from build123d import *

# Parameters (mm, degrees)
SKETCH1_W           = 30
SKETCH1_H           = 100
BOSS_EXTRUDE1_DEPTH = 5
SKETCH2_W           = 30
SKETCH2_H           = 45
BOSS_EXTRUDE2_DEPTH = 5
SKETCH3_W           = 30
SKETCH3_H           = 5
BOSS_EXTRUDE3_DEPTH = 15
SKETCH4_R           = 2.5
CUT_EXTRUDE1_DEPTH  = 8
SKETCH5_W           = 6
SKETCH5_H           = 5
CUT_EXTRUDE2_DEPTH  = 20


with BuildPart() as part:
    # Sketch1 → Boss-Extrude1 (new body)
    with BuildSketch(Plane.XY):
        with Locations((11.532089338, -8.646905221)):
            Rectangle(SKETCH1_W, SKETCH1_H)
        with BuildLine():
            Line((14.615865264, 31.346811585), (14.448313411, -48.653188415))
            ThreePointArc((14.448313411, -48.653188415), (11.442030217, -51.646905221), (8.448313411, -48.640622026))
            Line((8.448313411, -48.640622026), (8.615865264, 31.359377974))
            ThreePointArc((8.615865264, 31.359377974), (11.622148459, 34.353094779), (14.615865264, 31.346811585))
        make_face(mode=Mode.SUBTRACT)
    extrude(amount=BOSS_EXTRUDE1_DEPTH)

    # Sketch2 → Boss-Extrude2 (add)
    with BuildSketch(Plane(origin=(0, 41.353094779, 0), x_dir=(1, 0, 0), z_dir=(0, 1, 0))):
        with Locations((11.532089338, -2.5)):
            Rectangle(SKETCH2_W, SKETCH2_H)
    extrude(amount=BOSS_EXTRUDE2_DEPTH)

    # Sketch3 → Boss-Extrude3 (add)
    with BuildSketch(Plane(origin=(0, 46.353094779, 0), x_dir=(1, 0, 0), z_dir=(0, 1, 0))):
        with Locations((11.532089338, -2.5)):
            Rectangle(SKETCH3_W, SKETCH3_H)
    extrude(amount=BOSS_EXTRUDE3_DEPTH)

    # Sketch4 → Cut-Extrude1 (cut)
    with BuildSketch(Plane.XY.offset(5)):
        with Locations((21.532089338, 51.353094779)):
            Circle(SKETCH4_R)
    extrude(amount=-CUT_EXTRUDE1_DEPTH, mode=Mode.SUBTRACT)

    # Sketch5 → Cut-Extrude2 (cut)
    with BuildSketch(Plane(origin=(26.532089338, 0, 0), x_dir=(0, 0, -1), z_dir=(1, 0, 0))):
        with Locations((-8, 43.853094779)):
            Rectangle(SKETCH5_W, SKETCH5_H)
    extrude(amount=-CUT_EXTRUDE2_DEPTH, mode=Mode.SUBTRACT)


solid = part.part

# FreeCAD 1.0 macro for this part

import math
import FreeCAD as App
import Part
import Sketcher

V = App.Vector
Q = App.Units.Quantity


def add_polygon(sketch, points):
    """Adds a closed chain of lines whose ends are joined by coincident constraints."""
    first, n = sketch.GeometryCount, len(points)
    for a, b in zip(points, points[1:] + points[:1]):
        sketch.addGeometry(Part.LineSegment(App.Vector(*a, 0), App.Vector(*b, 0)), False)
    for i in range(n):
        sketch.addConstraint(Sketcher.Constraint("Coincident", first + i, 2, first + (i + 1) % n, 1))

doc = App.newDocument("Part")
body = doc.addObject("PartDesign::Body", "Body")

# Sketch on XY plane
sketch1 = body.newObject("Sketcher::SketchObject", "Sketch")
sketch1.AttachmentSupport = (doc.getObject("XY_Plane"), [""])
sketch1.MapMode = "FlatFace"
add_polygon(sketch1, [(-3.5, 41.4), (-3.5, -58.6), (26.5, -58.6), (26.5, 41.4)])  # lines 0-3
sketch1.addGeometry(Part.ArcOfCircle(Part.Circle(V(11.6, 31.4, 0), V(0, 0, 1), 3), math.radians(0), math.radians(180)), False)  # 4
sketch1.addGeometry(Part.LineSegment(V(14.6, 31.3, 0), V(14.4, -48.7, 0)), False)  # 5
sketch1.addGeometry(Part.ArcOfCircle(Part.Circle(V(11.4, -48.6, 0), V(0, 0, 1), 3), math.radians(180), math.radians(360)), False)  # 6
sketch1.addGeometry(Part.LineSegment(V(8.4, -48.6, 0), V(8.6, 31.4, 0)), False)  # 7
sketch1.addConstraint([
    Sketcher.Constraint("Tangent", 4, 1, 5, 1),
    Sketcher.Constraint("Tangent", 5, 2, 6, 2),
    Sketcher.Constraint("Tangent", 6, 1, 7, 1),
    Sketcher.Constraint("Tangent", 7, 2, 4, 2),
    Sketcher.Constraint("Vertical", 0),
    Sketcher.Constraint("Horizontal", 1),
    Sketcher.Constraint("Vertical", 2),
    Sketcher.Constraint("Horizontal", 3),
    Sketcher.Constraint("Equal", 4, 6),
    Sketcher.Constraint("DistanceX", 1, 1, 1, 2, 30.0),
    Sketcher.Constraint("DistanceY", 0, 2, 0, 1, 100.0),
    Sketcher.Constraint("DistanceY", 6, 3, 4, 3, 80.0),
    Sketcher.Constraint("DistanceY", 0, 2, 6, 3, 10.0),
    Sketcher.Constraint("DistanceX", 4, 3, 4, 1, 3.0),
    Sketcher.Constraint("Angle", 5, Q("-90.12 deg")),
    Sketcher.Constraint("DistanceX", 0, 2, -1, 1, 3.467911),
    Sketcher.Constraint("DistanceY", -1, 1, 4, 1, 31.346812),
    Sketcher.Constraint("DistanceX", -1, 1, 4, 3, 11.615865),
])
pad1 = body.newObject("PartDesign::Pad", "Pad")
pad1.Profile = sketch1
pad1.Length = 5

# Sketch on XZ plane
sketch2 = body.newObject("Sketcher::SketchObject", "Sketch001")
sketch2.AttachmentSupport = (doc.getObject("XZ_Plane"), [""])
sketch2.MapMode = "FlatFace"
sketch2.AttachmentOffset = App.Placement(V(0, 0, -41.353095), App.Rotation())
add_polygon(sketch2, [(-3, -20), (-3, 25), (27, 25), (27, -20)])  # lines 0-3
sketch2.addConstraint([
    Sketcher.Constraint("Vertical", 0),
    Sketcher.Constraint("Horizontal", 1),
    Sketcher.Constraint("Vertical", 2),
    Sketcher.Constraint("Horizontal", 3),
    Sketcher.Constraint("DistanceX", 1, 1, 1, 2, 30.0),
    Sketcher.Constraint("DistanceY", 0, 1, 0, 2, 45.0),
    Sketcher.Constraint("DistanceY", -1, 1, 0, 2, 25.0),
    Sketcher.Constraint("DistanceX", 0, 2, -1, 1, 3.467911),
])
pad2 = body.newObject("PartDesign::Pad", "Pad001")
pad2.Profile = sketch2
pad2.Length = 5
pad2.Reversed = True

# Sketch on XZ plane
sketch3 = body.newObject("Sketcher::SketchObject", "Sketch002")
sketch3.AttachmentSupport = (doc.getObject("XZ_Plane"), [""])
sketch3.MapMode = "FlatFace"
sketch3.AttachmentOffset = App.Placement(V(0, 0, -46.353095), App.Rotation())
add_polygon(sketch3, [(-3, 0), (-3, 5), (27, 5), (27, 0)])  # lines 0-3
sketch3.addConstraint([
    Sketcher.Constraint("Vertical", 0),
    Sketcher.Constraint("Horizontal", 1),
    Sketcher.Constraint("Vertical", 2),
    Sketcher.Constraint("Horizontal", 3),
    Sketcher.Constraint("PointOnObject", 2, 2, -1),
    Sketcher.Constraint("DistanceX", 1, 1, 1, 2, 30.0),
    Sketcher.Constraint("DistanceY", 0, 1, 0, 2, 5.0),
    Sketcher.Constraint("DistanceX", 0, 2, -1, 1, 3.467911),
])
pad3 = body.newObject("PartDesign::Pad", "Pad002")
pad3.Profile = sketch3
pad3.Length = 15
pad3.Reversed = True

# Sketch on XY plane
sketch4 = body.newObject("Sketcher::SketchObject", "Sketch003")
sketch4.AttachmentSupport = (doc.getObject("XY_Plane"), [""])
sketch4.MapMode = "FlatFace"
sketch4.AttachmentOffset = App.Placement(V(0, 0, 5), App.Rotation())
sketch4.addGeometry(Part.Circle(V(21.5, 51.4, 0), V(0, 0, 1), 2.5), False)
sketch4.addConstraint([
    Sketcher.Constraint("Diameter", 0, 5.0),
    Sketcher.Constraint("DistanceX", -1, 1, 0, 3, 21.532089),
    Sketcher.Constraint("DistanceY", -1, 1, 0, 3, 51.353095),
])
pocket1 = body.newObject("PartDesign::Pocket", "Pocket")
pocket1.Profile = sketch4
pocket1.Length = 8

# Sketch on YZ plane
sketch5 = body.newObject("Sketcher::SketchObject", "Sketch004")
sketch5.AttachmentSupport = (doc.getObject("YZ_Plane"), [""])
sketch5.MapMode = "FlatFace"
sketch5.AttachmentOffset = App.Placement(V(0, 0, 26.532089), App.Rotation())
add_polygon(sketch5, [(46, 11), (41, 11), (41, 5), (46, 5)])  # lines 0-3
sketch5.addConstraint([
    Sketcher.Constraint("Horizontal", 0),
    Sketcher.Constraint("Vertical", 1),
    Sketcher.Constraint("Horizontal", 2),
    Sketcher.Constraint("Vertical", 3),
    Sketcher.Constraint("DistanceX", 0, 2, 0, 1, 5.0),
    Sketcher.Constraint("DistanceY", 1, 2, 1, 1, 6.0),
    Sketcher.Constraint("DistanceY", -1, 1, 0, 2, 11.0),
    Sketcher.Constraint("DistanceX", -1, 1, 0, 2, 41.353095),
])
pocket2 = body.newObject("PartDesign::Pocket", "Pocket001")
pocket2.Profile = sketch5
pocket2.Length = 20

doc.recompute()
